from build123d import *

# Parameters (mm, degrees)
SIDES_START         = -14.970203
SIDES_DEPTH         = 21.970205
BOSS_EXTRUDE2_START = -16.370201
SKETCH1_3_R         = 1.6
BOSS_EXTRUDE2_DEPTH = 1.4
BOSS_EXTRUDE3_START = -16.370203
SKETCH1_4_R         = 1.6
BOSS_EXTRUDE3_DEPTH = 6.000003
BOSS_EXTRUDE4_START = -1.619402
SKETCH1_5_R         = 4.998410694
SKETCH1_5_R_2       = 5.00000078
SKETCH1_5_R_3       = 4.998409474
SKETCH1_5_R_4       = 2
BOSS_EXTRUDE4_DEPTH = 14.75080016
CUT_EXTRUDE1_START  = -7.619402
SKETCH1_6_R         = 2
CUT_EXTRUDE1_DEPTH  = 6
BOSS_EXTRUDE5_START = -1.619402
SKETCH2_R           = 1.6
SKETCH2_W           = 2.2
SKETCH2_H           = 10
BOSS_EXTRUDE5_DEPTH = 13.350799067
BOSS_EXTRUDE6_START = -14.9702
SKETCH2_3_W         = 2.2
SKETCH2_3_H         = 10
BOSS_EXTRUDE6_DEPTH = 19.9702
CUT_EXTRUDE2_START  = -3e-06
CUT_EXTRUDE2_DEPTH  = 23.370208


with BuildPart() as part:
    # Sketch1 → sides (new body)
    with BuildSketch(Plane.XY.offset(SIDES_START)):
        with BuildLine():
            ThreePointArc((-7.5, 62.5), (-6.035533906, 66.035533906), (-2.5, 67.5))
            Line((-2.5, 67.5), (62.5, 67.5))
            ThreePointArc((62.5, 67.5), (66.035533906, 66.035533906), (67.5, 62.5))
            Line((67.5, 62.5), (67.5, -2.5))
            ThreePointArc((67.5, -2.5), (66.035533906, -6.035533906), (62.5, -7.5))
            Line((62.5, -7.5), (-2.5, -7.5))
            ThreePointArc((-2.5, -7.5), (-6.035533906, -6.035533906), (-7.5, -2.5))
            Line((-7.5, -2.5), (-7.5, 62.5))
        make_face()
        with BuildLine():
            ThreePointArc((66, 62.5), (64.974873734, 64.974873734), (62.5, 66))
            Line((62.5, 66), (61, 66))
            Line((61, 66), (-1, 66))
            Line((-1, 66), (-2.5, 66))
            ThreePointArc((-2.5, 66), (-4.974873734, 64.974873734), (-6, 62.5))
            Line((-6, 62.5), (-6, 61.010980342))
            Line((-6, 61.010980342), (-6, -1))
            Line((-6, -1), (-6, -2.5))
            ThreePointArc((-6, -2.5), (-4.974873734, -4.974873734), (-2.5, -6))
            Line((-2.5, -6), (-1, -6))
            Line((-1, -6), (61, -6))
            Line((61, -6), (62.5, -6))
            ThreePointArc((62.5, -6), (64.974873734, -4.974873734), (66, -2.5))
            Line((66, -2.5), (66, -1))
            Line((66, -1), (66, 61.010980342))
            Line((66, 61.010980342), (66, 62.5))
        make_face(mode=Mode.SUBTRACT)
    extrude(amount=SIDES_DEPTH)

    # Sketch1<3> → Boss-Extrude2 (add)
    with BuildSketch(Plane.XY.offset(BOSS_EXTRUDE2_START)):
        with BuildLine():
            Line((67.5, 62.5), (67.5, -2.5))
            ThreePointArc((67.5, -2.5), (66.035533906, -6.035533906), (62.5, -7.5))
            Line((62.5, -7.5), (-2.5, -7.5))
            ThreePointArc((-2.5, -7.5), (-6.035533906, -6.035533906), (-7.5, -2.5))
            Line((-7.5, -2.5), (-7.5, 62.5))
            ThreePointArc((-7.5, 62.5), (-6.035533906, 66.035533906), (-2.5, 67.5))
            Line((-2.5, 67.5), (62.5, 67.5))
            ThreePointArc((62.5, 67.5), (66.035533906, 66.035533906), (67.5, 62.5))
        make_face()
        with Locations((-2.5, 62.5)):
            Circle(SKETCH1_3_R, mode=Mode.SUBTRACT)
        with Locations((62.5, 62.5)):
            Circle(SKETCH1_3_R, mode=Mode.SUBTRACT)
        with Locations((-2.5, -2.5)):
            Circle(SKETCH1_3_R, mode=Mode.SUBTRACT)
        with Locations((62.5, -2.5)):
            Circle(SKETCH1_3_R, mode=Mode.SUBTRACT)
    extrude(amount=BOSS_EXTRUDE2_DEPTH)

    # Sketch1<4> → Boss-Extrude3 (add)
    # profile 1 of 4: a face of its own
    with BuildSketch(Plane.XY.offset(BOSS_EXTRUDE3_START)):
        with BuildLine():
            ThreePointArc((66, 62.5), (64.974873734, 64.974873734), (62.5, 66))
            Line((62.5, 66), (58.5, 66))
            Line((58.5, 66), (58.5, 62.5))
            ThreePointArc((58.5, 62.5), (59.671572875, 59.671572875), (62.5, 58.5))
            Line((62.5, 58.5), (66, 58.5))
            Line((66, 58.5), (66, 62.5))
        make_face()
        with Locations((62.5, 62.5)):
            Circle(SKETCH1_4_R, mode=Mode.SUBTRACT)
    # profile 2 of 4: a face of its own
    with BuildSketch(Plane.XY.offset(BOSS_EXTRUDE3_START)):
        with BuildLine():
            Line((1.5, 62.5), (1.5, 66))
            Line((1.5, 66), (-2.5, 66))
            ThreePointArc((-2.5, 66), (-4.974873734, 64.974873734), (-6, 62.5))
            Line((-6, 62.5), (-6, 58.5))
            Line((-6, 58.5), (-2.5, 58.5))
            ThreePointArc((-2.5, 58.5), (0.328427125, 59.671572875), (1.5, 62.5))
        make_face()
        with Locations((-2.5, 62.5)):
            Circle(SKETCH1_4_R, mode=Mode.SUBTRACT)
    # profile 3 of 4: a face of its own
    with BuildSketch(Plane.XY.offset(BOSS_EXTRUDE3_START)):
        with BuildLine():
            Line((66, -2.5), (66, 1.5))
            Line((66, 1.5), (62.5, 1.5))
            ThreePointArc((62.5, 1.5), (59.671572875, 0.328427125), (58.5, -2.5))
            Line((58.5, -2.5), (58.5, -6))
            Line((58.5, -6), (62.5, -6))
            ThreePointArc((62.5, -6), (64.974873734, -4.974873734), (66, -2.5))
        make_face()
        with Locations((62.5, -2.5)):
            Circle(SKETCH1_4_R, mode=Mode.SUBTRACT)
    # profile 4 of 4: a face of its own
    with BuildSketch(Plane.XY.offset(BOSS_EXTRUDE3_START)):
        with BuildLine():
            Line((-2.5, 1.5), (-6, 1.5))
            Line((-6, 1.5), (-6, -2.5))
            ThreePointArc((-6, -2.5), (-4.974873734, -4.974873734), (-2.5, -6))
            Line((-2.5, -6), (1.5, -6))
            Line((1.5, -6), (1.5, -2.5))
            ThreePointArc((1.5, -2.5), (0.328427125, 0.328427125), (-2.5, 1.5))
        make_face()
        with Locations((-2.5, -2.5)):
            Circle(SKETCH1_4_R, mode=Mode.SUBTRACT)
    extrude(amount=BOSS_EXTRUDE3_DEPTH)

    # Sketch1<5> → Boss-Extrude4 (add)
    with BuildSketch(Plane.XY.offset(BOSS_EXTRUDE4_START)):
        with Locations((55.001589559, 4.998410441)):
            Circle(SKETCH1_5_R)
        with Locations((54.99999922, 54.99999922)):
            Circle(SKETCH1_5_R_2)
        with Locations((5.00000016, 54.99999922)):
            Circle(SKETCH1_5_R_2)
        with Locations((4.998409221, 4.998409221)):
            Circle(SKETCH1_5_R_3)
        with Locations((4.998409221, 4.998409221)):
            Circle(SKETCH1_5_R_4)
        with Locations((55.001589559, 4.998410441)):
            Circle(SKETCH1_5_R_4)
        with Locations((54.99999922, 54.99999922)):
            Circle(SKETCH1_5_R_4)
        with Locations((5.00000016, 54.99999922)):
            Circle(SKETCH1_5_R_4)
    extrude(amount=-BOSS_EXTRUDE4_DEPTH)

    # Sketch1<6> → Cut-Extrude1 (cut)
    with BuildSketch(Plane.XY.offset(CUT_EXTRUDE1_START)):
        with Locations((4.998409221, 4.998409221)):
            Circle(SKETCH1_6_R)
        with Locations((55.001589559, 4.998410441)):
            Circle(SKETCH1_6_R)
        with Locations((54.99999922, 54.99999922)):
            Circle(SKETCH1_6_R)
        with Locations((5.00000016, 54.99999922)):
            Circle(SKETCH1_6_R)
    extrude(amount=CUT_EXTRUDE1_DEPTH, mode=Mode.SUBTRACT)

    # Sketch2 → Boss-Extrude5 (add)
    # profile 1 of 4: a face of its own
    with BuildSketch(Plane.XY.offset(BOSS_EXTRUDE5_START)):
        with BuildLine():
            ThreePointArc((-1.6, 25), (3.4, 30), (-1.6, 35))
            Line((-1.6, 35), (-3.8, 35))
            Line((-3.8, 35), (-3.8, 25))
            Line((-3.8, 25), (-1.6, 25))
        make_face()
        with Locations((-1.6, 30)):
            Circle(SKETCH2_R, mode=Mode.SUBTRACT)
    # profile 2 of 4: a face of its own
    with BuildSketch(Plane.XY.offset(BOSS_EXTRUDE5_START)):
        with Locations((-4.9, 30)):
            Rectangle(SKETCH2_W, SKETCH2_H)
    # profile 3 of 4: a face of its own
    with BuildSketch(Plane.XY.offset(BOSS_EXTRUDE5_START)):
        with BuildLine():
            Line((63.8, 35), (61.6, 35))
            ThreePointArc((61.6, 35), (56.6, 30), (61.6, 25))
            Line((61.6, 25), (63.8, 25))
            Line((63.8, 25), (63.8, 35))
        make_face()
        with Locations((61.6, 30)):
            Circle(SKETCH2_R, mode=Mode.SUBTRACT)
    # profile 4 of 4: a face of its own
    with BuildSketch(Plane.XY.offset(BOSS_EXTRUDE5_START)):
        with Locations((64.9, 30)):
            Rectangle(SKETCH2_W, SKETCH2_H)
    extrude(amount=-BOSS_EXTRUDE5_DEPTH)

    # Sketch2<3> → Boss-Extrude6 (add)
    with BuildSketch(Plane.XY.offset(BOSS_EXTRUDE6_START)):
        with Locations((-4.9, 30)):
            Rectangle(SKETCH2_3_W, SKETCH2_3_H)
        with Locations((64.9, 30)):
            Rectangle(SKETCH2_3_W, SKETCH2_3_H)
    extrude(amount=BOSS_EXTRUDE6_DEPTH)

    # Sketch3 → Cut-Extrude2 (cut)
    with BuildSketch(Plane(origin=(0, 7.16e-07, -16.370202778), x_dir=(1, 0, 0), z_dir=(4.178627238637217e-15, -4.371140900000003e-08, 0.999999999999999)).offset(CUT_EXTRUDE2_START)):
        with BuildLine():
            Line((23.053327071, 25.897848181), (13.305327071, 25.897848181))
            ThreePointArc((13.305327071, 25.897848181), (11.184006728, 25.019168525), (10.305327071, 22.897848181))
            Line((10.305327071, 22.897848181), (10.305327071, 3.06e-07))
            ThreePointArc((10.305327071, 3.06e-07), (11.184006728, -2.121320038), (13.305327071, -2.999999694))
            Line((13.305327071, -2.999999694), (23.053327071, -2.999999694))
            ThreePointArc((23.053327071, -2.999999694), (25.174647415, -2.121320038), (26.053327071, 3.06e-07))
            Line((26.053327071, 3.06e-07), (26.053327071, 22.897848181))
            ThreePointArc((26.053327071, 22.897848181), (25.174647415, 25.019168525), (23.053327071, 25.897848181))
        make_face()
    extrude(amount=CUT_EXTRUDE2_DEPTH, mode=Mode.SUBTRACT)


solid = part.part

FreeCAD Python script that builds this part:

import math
import FreeCAD as App
import Part
import Sketcher
from FreeCAD import Vector


def add_polygon(sketch, points):
    """Adds a closed chain of lines whose ends are joined by coincident constraints."""
    first, n = sketch.GeometryCount, len(points)
    for a, b in zip(points, points[1:] + points[:1]):
        sketch.addGeometry(Part.LineSegment(App.Vector(*a, 0), App.Vector(*b, 0)), False)
    for i in range(n):
        sketch.addConstraint(Sketcher.Constraint("Coincident", first + i, 2, first + (i + 1) % n, 1))

doc = App.newDocument("Part")
body = doc.addObject("PartDesign::Body", "Body")

# Sketch on XY plane
sketch1 = body.newObject("Sketcher::SketchObject", "Sketch")
sketch1.AttachmentSupport = (doc.getObject("XY_Plane"), [""])
sketch1.MapMode = "FlatFace"
sketch1.AttachmentOffset = App.Placement(Vector(0, 0, -14.970203), App.Rotation())
sketch1.addGeometry([
    Part.ArcOfCircle(Part.Circle(Vector(-2.5, 62.5, 0), Vector(0, 0, 1), 5), math.radians(90), math.radians(180)),  # 0
    Part.LineSegment(Vector(-7.5, 62.5, 0), Vector(-7.5, -2.5, 0)),  # 1
    Part.ArcOfCircle(Part.Circle(Vector(-2.5, -2.5, 0), Vector(0, 0, 1), 5), math.radians(180), math.radians(270)),  # 2
    Part.LineSegment(Vector(-2.5, -7.5, 0), Vector(62.5, -7.5, 0)),  # 3
    Part.ArcOfCircle(Part.Circle(Vector(62.5, -2.5, 0), Vector(0, 0, 1), 5), math.radians(-90), math.radians(0)),  # 4
    Part.LineSegment(Vector(67.5, -2.5, 0), Vector(67.5, 62.5, 0)),  # 5
    Part.ArcOfCircle(Part.Circle(Vector(62.5, 62.5, 0), Vector(0, 0, 1), 5), math.radians(0), math.radians(90)),  # 6
    Part.LineSegment(Vector(62.5, 67.5, 0), Vector(-2.5, 67.5, 0)),  # 7
    Part.LineSegment(Vector(66, 62.5, 0), Vector(66, -2.5, 0)),  # 8
    Part.ArcOfCircle(Part.Circle(Vector(62.5, -2.5, 0), Vector(0, 0, 1), 3.5), math.radians(-90), math.radians(0)),  # 9
    Part.LineSegment(Vector(62.5, -6, 0), Vector(-2.5, -6, 0)),  # 10
    Part.ArcOfCircle(Part.Circle(Vector(-2.5, -2.5, 0), Vector(0, 0, 1), 3.5), math.radians(-180), math.radians(-90)),  # 11
    Part.LineSegment(Vector(-6, -2.5, 0), Vector(-6, 62.5, 0)),  # 12
    Part.ArcOfCircle(Part.Circle(Vector(-2.5, 62.5, 0), Vector(0, 0, 1), 3.5), math.radians(90), math.radians(180)),  # 13
    Part.LineSegment(Vector(-2.5, 66, 0), Vector(62.5, 66, 0)),  # 14
    Part.ArcOfCircle(Part.Circle(Vector(62.5, 62.5, 0), Vector(0, 0, 1), 3.5), math.radians(0), math.radians(90)),  # 15
], False)
sketch1.addConstraint([
    Sketcher.Constraint("Tangent", 0, 2, 1, 1),
    Sketcher.Constraint("Tangent", 1, 2, 2, 1),
    Sketcher.Constraint("Tangent", 2, 2, 3, 1),
    Sketcher.Constraint("Tangent", 3, 2, 4, 1),
    Sketcher.Constraint("Tangent", 4, 2, 5, 1),
    Sketcher.Constraint("Tangent", 5, 2, 6, 1),
    Sketcher.Constraint("Tangent", 6, 2, 7, 1),
    Sketcher.Constraint("Tangent", 7, 2, 0, 1),
    Sketcher.Constraint("Tangent", 8, 2, 9, 2),
    Sketcher.Constraint("Tangent", 9, 1, 10, 1),
    Sketcher.Constraint("Tangent", 10, 2, 11, 2),
    Sketcher.Constraint("Tangent", 11, 1, 12, 1),
    Sketcher.Constraint("Tangent", 12, 2, 13, 2),
    Sketcher.Constraint("Tangent", 13, 1, 14, 1),
    Sketcher.Constraint("Tangent", 14, 2, 15, 2),
    Sketcher.Constraint("Tangent", 15, 1, 8, 1),
    Sketcher.Constraint("Vertical", 1),
    Sketcher.Constraint("Horizontal", 3),
    Sketcher.Constraint("Vertical", 5),
    Sketcher.Constraint("Horizontal", 7),
    Sketcher.Constraint("Vertical", 8),
    Sketcher.Constraint("Horizontal", 10),
    Sketcher.Constraint("Vertical", 12),
    Sketcher.Constraint("Horizontal", 14),
    Sketcher.Constraint("Coincident", 9, 3, 4, 3),
    Sketcher.Constraint("Coincident", 11, 3, 2, 3),
    Sketcher.Constraint("Coincident", 13, 3, 0, 3),
    Sketcher.Constraint("Equal", 0, 2),
    Sketcher.Constraint("Equal", 2, 4),
    Sketcher.Constraint("Equal", 4, 6),
    Sketcher.Constraint("Equal", 13, 15),
    Sketcher.Constraint("Equal", 14, 1),
    Sketcher.Constraint("Radius", 0, 5.0),
    Sketcher.Constraint("Radius", 9, 3.5),
    Sketcher.Constraint("DistanceX", 3, 1, 3, 2, 65.0),
    Sketcher.Constraint("DistanceX", -1, 1, 8, 2, 66.0),
    Sketcher.Constraint("DistanceY", 9, 1, -1, 1, 6.0),
])
pad1 = body.newObject("PartDesign::Pad", "Pad")
pad1.Profile = sketch1
pad1.Length = 21.970205

# Sketch on XY plane
sketch2 = body.newObject("Sketcher::SketchObject", "Sketch001")
sketch2.AttachmentSupport = (doc.getObject("XY_Plane"), [""])
sketch2.MapMode = "FlatFace"
sketch2.AttachmentOffset = App.Placement(Vector(0, 0, -16.370201), App.Rotation())
sketch2.addGeometry([
    Part.LineSegment(Vector(67.5, -2.5, 0), Vector(67.5, 62.5, 0)),  # 0
    Part.ArcOfCircle(Part.Circle(Vector(62.5, 62.5, 0), Vector(0, 0, 1), 5), math.radians(0), math.radians(90)),  # 1
    Part.LineSegment(Vector(62.5, 67.5, 0), Vector(-2.5, 67.5, 0)),  # 2
    Part.ArcOfCircle(Part.Circle(Vector(-2.5, 62.5, 0), Vector(0, 0, 1), 5), math.radians(90), math.radians(180)),  # 3
    Part.LineSegment(Vector(-7.5, 62.5, 0), Vector(-7.5, -2.5, 0)),  # 4
    Part.ArcOfCircle(Part.Circle(Vector(-2.5, -2.5, 0), Vector(0, 0, 1), 5), math.radians(180), math.radians(270)),  # 5
    Part.LineSegment(Vector(-2.5, -7.5, 0), Vector(62.5, -7.5, 0)),  # 6
    Part.ArcOfCircle(Part.Circle(Vector(62.5, -2.5, 0), Vector(0, 0, 1), 5), math.radians(-90), math.radians(0)),  # 7
    Part.Circle(Vector(62.5, -2.5, 0), Vector(0, 0, 1), 1.6),  # 8
    Part.Circle(Vector(-2.5, -2.5, 0), Vector(0, 0, 1), 1.6),  # 9
    Part.Circle(Vector(62.5, 62.5, 0), Vector(0, 0, 1), 1.6),  # 10
    Part.Circle(Vector(-2.5, 62.5, 0), Vector(0, 0, 1), 1.6),  # 11
], False)
sketch2.addConstraint([
    Sketcher.Constraint("Tangent", 0, 2, 1, 1),
    Sketcher.Constraint("Tangent", 1, 2, 2, 1),
    Sketcher.Constraint("Tangent", 2, 2, 3, 1),
    Sketcher.Constraint("Tangent", 3, 2, 4, 1),
    Sketcher.Constraint("Tangent", 4, 2, 5, 1),
    Sketcher.Constraint("Tangent", 5, 2, 6, 1),
    Sketcher.Constraint("Tangent", 6, 2, 7, 1),
    Sketcher.Constraint("Tangent", 7, 2, 0, 1),
    Sketcher.Constraint("Vertical", 0),
    Sketcher.Constraint("Horizontal", 2),
    Sketcher.Constraint("Vertical", 4),
    Sketcher.Constraint("Horizontal", 6),
    Sketcher.Constraint("Coincident", 8, 3, 7, 3),
    Sketcher.Constraint("Coincident", 9, 3, 5, 3),
    Sketcher.Constraint("Coincident", 10, 3, 1, 3),
    Sketcher.Constraint("Coincident", 11, 3, 3, 3),
    Sketcher.Constraint("Equal", 1, 3),
    Sketcher.Constraint("Equal", 3, 5),
    Sketcher.Constraint("Equal", 5, 7),
    Sketcher.Constraint("Equal", 8, 9),
    Sketcher.Constraint("Equal", 9, 10),
    Sketcher.Constraint("Equal", 10, 11),
    Sketcher.Constraint("Equal", 6, 0),
    Sketcher.Constraint("Radius", 1, 5.0),
    Sketcher.Constraint("Diameter", 8, 3.2),
    Sketcher.Constraint("DistanceX", 2, 2, 2, 1, 65.0),
    Sketcher.Constraint("DistanceX", -1, 1, 1, 3, 62.5),
    Sketcher.Constraint("DistanceY", -1, 1, 1, 3, 62.5),
])
pad2 = body.newObject("PartDesign::Pad", "Pad001")
pad2.Profile = sketch2
pad2.Length = 1.4

# Sketch on XY plane
sketch3 = body.newObject("Sketcher::SketchObject", "Sketch002")
sketch3.AttachmentSupport = (doc.getObject("XY_Plane"), [""])
sketch3.MapMode = "FlatFace"
sketch3.AttachmentOffset = App.Placement(Vector(0, 0, -16.370203), App.Rotation())
sketch3.addGeometry([
    Part.ArcOfCircle(Part.Circle(Vector(62.5, 62.5, 0), Vector(0, 0, 1), 3.5), math.radians(0), math.radians(90)),  # 0
    Part.LineSegment(Vector(62.5, 66, 0), Vector(58.5, 66, 0)),  # 1
    Part.LineSegment(Vector(58.5, 66, 0), Vector(58.5, 62.5, 0)),  # 2
    Part.ArcOfCircle(Part.Circle(Vector(62.5, 62.5, 0), Vector(0, 0, 1), 4), math.radians(180), math.radians(270)),  # 3
    Part.LineSegment(Vector(62.5, 58.5, 0), Vector(66, 58.5, 0)),  # 4
    Part.LineSegment(Vector(66, 58.5, 0), Vector(66, 62.5, 0)),  # 5
    Part.Circle(Vector(62.5, 62.5, 0), Vector(0, 0, 1), 1.6),  # 6
    Part.LineSegment(Vector(1.5, 62.5, 0), Vector(1.5, 66, 0)),  # 7
    Part.LineSegment(Vector(1.5, 66, 0), Vector(-2.5, 66, 0)),  # 8
    Part.ArcOfCircle(Part.Circle(Vector(-2.5, 62.5, 0), Vector(0, 0, 1), 3.5), math.radians(90), math.radians(180)),  # 9
    Part.LineSegment(Vector(-6, 62.5, 0), Vector(-6, 58.5, 0)),  # 10
    Part.LineSegment(Vector(-6, 58.5, 0), Vector(-2.5, 58.5, 0)),  # 11
    Part.ArcOfCircle(Part.Circle(Vector(-2.5, 62.5, 0), Vector(0, 0, 1), 4), math.radians(-90), math.radians(0)),  # 12
    Part.Circle(Vector(-2.5, 62.5, 0), Vector(0, 0, 1), 1.6),  # 13
    Part.LineSegment(Vector(66, -2.5, 0), Vector(66, 1.5, 0)),  # 14
    Part.LineSegment(Vector(66, 1.5, 0), Vector(62.5, 1.5, 0)),  # 15
    Part.ArcOfCircle(Part.Circle(Vector(62.5, -2.5, 0), Vector(0, 0, 1), 4), math.radians(90), math.radians(180)),  # 16
    Part.LineSegment(Vector(58.5, -2.5, 0), Vector(58.5, -6, 0)),  # 17
    Part.LineSegment(Vector(58.5, -6, 0), Vector(62.5, -6, 0)),  # 18
    Part.ArcOfCircle(Part.Circle(Vector(62.5, -2.5, 0), Vector(0, 0, 1), 3.5), math.radians(-90), math.radians(0)),  # 19
    Part.Circle(Vector(62.5, -2.5, 0), Vector(0, 0, 1), 1.6),  # 20
    Part.LineSegment(Vector(-2.5, 1.5, 0), Vector(-6, 1.5, 0)),  # 21
    Part.LineSegment(Vector(-6, 1.5, 0), Vector(-6, -2.5, 0)),  # 22
    Part.ArcOfCircle(Part.Circle(Vector(-2.5, -2.5, 0), Vector(0, 0, 1), 3.5), math.radians(-180), math.radians(-90)),  # 23
    Part.LineSegment(Vector(-2.5, -6, 0), Vector(1.5, -6, 0)),  # 24
    Part.LineSegment(Vector(1.5, -6, 0), Vector(1.5, -2.5, 0)),  # 25
    Part.ArcOfCircle(Part.Circle(Vector(-2.5, -2.5, 0), Vector(0, 0, 1), 4), math.radians(0), math.radians(90)),  # 26
    Part.Circle(Vector(-2.5, -2.5, 0), Vector(0, 0, 1), 1.6),  # 27
], False)
sketch3.addConstraint([
    Sketcher.Constraint("Tangent", 0, 2, 1, 1),
    Sketcher.Constraint("Coincident", 1, 2, 2, 1),
    Sketcher.Constraint("Tangent", 2, 2, 3, 1),
    Sketcher.Constraint("Tangent", 3, 2, 4, 1),
    Sketcher.Constraint("Coincident", 4, 2, 5, 1),
    Sketcher.Constraint("Tangent", 5, 2, 0, 1),
    Sketcher.Constraint("Coincident", 7, 2, 8, 1),
    Sketcher.Constraint("Tangent", 8, 2, 9, 1),
    Sketcher.Constraint("Tangent", 9, 2, 10, 1),
    Sketcher.Constraint("Coincident", 10, 2, 11, 1),
    Sketcher.Constraint("Tangent", 11, 2, 12, 1),
    Sketcher.Constraint("Tangent", 12, 2, 7, 1),
    Sketcher.Constraint("Coincident", 14, 2, 15, 1),
    Sketcher.Constraint("Tangent", 15, 2, 16, 1),
    Sketcher.Constraint("Tangent", 16, 2, 17, 1),
    Sketcher.Constraint("Coincident", 17, 2, 18, 1),
    Sketcher.Constraint("Tangent", 18, 2, 19, 1),
    Sketcher.Constraint("Tangent", 19, 2, 14, 1),
    Sketcher.Constraint("Coincident", 21, 2, 22, 1),
    Sketcher.Constraint("Tangent", 22, 2, 23, 1),
    Sketcher.Constraint("Tangent", 23, 2, 24, 1),
    Sketcher.Constraint("Coincident", 24, 2, 25, 1),
    Sketcher.Constraint("Tangent", 25, 2, 26, 1),
    Sketcher.Constraint("Tangent", 26, 2, 21, 1),
    Sketcher.Constraint("Horizontal", 1),
    Sketcher.Constraint("Vertical", 2),
    Sketcher.Constraint("Horizontal", 4),
    Sketcher.Constraint("Vertical", 5),
    Sketcher.Constraint("Vertical", 7),
    Sketcher.Constraint("Horizontal", 8),
    Sketcher.Constraint("Vertical", 10),
    Sketcher.Constraint("Horizontal", 11),
    Sketcher.Constraint("Vertical", 14),
    Sketcher.Constraint("Horizontal", 15),
    Sketcher.Constraint("Vertical", 17),
    Sketcher.Constraint("Horizontal", 18),
    Sketcher.Constraint("Horizontal", 21),
    Sketcher.Constraint("Vertical", 22),
    Sketcher.Constraint("Horizontal", 24),
    Sketcher.Constraint("Vertical", 25),
    Sketcher.Constraint("Coincident", 3, 3, 0, 3),
    Sketcher.Constraint("Coincident", 6, 3, 0, 3),
    Sketcher.Constraint("Coincident", 12, 3, 9, 3),
    Sketcher.Constraint("Coincident", 13, 3, 9, 3),
    Sketcher.Constraint("Coincident", 19, 3, 16, 3),
    Sketcher.Constraint("Coincident", 20, 3, 16, 3),
    Sketcher.Constraint("Coincident", 26, 3, 23, 3),
    Sketcher.Constraint("Coincident", 27, 3, 23, 3),
    Sketcher.Constraint("Equal", 0, 9),
    Sketcher.Constraint("Equal", 3, 12),
    Sketcher.Constraint("Equal", 6, 13),
    Sketcher.Constraint("Equal", 12, 16),
    Sketcher.Constraint("Equal", 9, 19),
    Sketcher.Constraint("Equal", 13, 20),
    Sketcher.Constraint("Equal", 19, 23),
    Sketcher.Constraint("Equal", 16, 26),
    Sketcher.Constraint("Equal", 20, 27),
    Sketcher.Constraint("Horizontal", 6, 3, 9, 3),
    Sketcher.Constraint("Horizontal", 20, 3, 23, 3),
    Sketcher.Constraint("Vertical", 6, 3, 16, 3),
    Sketcher.Constraint("Vertical", 13, 3, 23, 3),
    Sketcher.Constraint("Radius", 3, 4.0),
    Sketcher.Constraint("Diameter", 6, 3.2),
    Sketcher.Constraint("Radius", 0, 3.5),
    Sketcher.Constraint("DistanceY", -1, 1, 0, 2, 66.0),
    Sketcher.Constraint("DistanceX", -1, 1, 4, 2, 66.0),
    Sketcher.Constraint("DistanceX", 9, 2, -1, 1, 6.0),
    Sketcher.Constraint("DistanceY", 17, 2, -1, 1, 6.0),
])
pad3 = body.newObject("PartDesign::Pad", "Pad002")
pad3.Profile = sketch3
pad3.Length = 6.000003

# Sketch on XY plane
sketch4 = body.newObject("Sketcher::SketchObject", "Sketch003")
sketch4.AttachmentSupport = (doc.getObject("XY_Plane"), [""])
sketch4.MapMode = "FlatFace"
sketch4.AttachmentOffset = App.Placement(Vector(0, 0, -1.619402), App.Rotation())
sketch4.addGeometry([
    Part.Circle(Vector(55.00159, 4.99841, 0), Vector(0, 0, 1), 4.998411),
    Part.Circle(Vector(54.999999, 54.999999, 0), Vector(0, 0, 1), 5.000001),
    Part.Circle(Vector(5, 54.999999, 0), Vector(0, 0, 1), 5.000001),
    Part.Circle(Vector(4.998409, 4.998409, 0), Vector(0, 0, 1), 4.998409),
], False)
sketch4.addConstraint([
    Sketcher.Constraint("Equal", 1, 2),
    Sketcher.Constraint("Equal", 0, 3),
    Sketcher.Constraint("Horizontal", 1, 3, 2, 3),
    Sketcher.Constraint("Horizontal", 0, 3, 3, 3),
    Sketcher.Constraint("Diameter", 1, 10.000002),
    Sketcher.Constraint("DistanceX", -1, 1, 1, 3, 54.999999),
    Sketcher.Constraint("DistanceY", -1, 1, 1, 3, 54.999999),
    Sketcher.Constraint("DistanceX", -1, 1, 2, 3, 5.0),
    Sketcher.Constraint("Diameter", 0, 9.996821),
    Sketcher.Constraint("DistanceX", -1, 1, 0, 3, 55.00159),
    Sketcher.Constraint("DistanceY", -1, 1, 0, 3, 4.99841),
    Sketcher.Constraint("DistanceX", -1, 1, 3, 3, 4.998409),
])
pad4 = body.newObject("PartDesign::Pad", "Pad003")
pad4.Profile = sketch4
pad4.Length = 14.7508
pad4.Reversed = True

# Sketch on XY plane
sketch5 = body.newObject("Sketcher::SketchObject", "Sketch004")
sketch5.AttachmentSupport = (doc.getObject("XY_Plane"), [""])
sketch5.MapMode = "FlatFace"
sketch5.AttachmentOffset = App.Placement(Vector(0, 0, -7.619402), App.Rotation())
sketch5.addGeometry([
    Part.Circle(Vector(4.998409, 4.998409, 0), Vector(0, 0, 1), 2),
    Part.Circle(Vector(55.00159, 4.99841, 0), Vector(0, 0, 1), 2),
    Part.Circle(Vector(54.999999, 54.999999, 0), Vector(0, 0, 1), 2),
    Part.Circle(Vector(5, 54.999999, 0), Vector(0, 0, 1), 2),
], False)
sketch5.addConstraint([
    Sketcher.Constraint("Equal", 0, 1),
    Sketcher.Constraint("Equal", 1, 2),
    Sketcher.Constraint("Equal", 2, 3),
    Sketcher.Constraint("Horizontal", 0, 3, 1, 3),
    Sketcher.Constraint("Horizontal", 2, 3, 3, 3),
    Sketcher.Constraint("Diameter", 0, 4.0),
    Sketcher.Constraint("DistanceX", -1, 1, 2, 3, 54.999999),
    Sketcher.Constraint("DistanceY", -1, 1, 2, 3, 54.999999),
    Sketcher.Constraint("DistanceX", -1, 1, 3, 3, 5.0),
    Sketcher.Constraint("DistanceX", -1, 1, 0, 3, 4.998409),
    Sketcher.Constraint("DistanceY", -1, 1, 0, 3, 4.998409),
    Sketcher.Constraint("DistanceX", -1, 1, 1, 3, 55.00159),
])
pocket1 = body.newObject("PartDesign::Pocket", "Pocket")
pocket1.Profile = sketch5
pocket1.Length = 6
pocket1.Reversed = True

# Sketch on XY plane
sketch6 = body.newObject("Sketcher::SketchObject", "Sketch005")
sketch6.AttachmentSupport = (doc.getObject("XY_Plane"), [""])
sketch6.MapMode = "FlatFace"
sketch6.AttachmentOffset = App.Placement(Vector(0, 0, -1.619402), App.Rotation())
sketch6.addGeometry([
    Part.ArcOfCircle(Part.Circle(Vector(-1.6, 30, 0), Vector(0, 0, 1), 5), math.radians(-90), math.radians(90)),  # 0
    Part.LineSegment(Vector(-1.6, 35, 0), Vector(-6, 35, 0)),  # 1
    Part.LineSegment(Vector(-6, 35, 0), Vector(-6, 25, 0)),  # 2
    Part.LineSegment(Vector(-6, 25, 0), Vector(-1.6, 25, 0)),  # 3
    Part.Circle(Vector(-1.6, 30, 0), Vector(0, 0, 1), 1.6),  # 4
    Part.ArcOfCircle(Part.Circle(Vector(61.6, 30, 0), Vector(0, 0, 1), 5), math.radians(90), math.radians(270)),  # 5
    Part.LineSegment(Vector(61.6, 25, 0), Vector(66, 25, 0)),  # 6
    Part.LineSegment(Vector(66, 25, 0), Vector(66, 35, 0)),  # 7
    Part.LineSegment(Vector(66, 35, 0), Vector(61.6, 35, 0)),  # 8
    Part.Circle(Vector(61.6, 30, 0), Vector(0, 0, 1), 1.6),  # 9
], False)
sketch6.addConstraint([
    Sketcher.Constraint("Tangent", 0, 2, 1, 1),
    Sketcher.Constraint("Coincident", 1, 2, 2, 1),
    Sketcher.Constraint("Coincident", 2, 2, 3, 1),
    Sketcher.Constraint("Tangent", 3, 2, 0, 1),
    Sketcher.Constraint("Tangent", 5, 2, 6, 1),
    Sketcher.Constraint("Coincident", 6, 2, 7, 1),
    Sketcher.Constraint("Coincident", 7, 2, 8, 1),
    Sketcher.Constraint("Tangent", 8, 2, 5, 1),
    Sketcher.Constraint("Horizontal", 1),
    Sketcher.Constraint("Vertical", 2),
    Sketcher.Constraint("Horizontal", 3),
    Sketcher.Constraint("Horizontal", 6),
    Sketcher.Constraint("Vertical", 7),
    Sketcher.Constraint("Horizontal", 8),
    Sketcher.Constraint("Coincident", 4, 3, 0, 3),
    Sketcher.Constraint("Coincident", 9, 3, 5, 3),
    Sketcher.Constraint("Equal", 0, 5),
    Sketcher.Constraint("Equal", 4, 9),
    Sketcher.Constraint("Horizontal", 4, 3, 5, 3),
    Sketcher.Constraint("Equal", 3, 6),
    Sketcher.Constraint("Radius", 0, 5.0),
    Sketcher.Constraint("Diameter", 4, 3.2),
    Sketcher.Constraint("DistanceX", 1, 2, 1, 1, 4.4),
    Sketcher.Constraint("DistanceY", -1, 1, 0, 3, 30.0),
    Sketcher.Constraint("DistanceX", 1, 2, -1, 1, 6.0),
    Sketcher.Constraint("DistanceX", -1, 1, 6, 2, 66.0),
])
pad5 = body.newObject("PartDesign::Pad", "Pad004")
pad5.Profile = sketch6
pad5.Length = 13.350799
pad5.Reversed = True

# Sketch on XY plane
sketch7 = body.newObject("Sketcher::SketchObject", "Sketch006")
sketch7.AttachmentSupport = (doc.getObject("XY_Plane"), [""])
sketch7.MapMode = "FlatFace"
sketch7.AttachmentOffset = App.Placement(Vector(0, 0, -14.9702), App.Rotation())
add_polygon(sketch7, [(-6, 35), (-6, 25), (-3.8, 25), (-3.8, 35)])  # lines 0-3
add_polygon(sketch7, [(63.8, 35), (63.8, 25), (66, 25), (66, 35)])  # lines 4-7
sketch7.addConstraint([
    Sketcher.Constraint("Vertical", 0),
    Sketcher.Constraint("Horizontal", 1),
    Sketcher.Constraint("Vertical", 2),
    Sketcher.Constraint("Horizontal", 3),
    Sketcher.Constraint("Vertical", 4),
    Sketcher.Constraint("Horizontal", 5),
    Sketcher.Constraint("Vertical", 6),
    Sketcher.Constraint("Horizontal", 7),
    Sketcher.Constraint("Horizontal", 1, 2, 4, 2),
    Sketcher.Constraint("Horizontal", 3, 2, 6, 2),
    Sketcher.Constraint("Equal", 3, 5),
    Sketcher.Constraint("DistanceY", 0, 2, 0, 1, 10.0),
    Sketcher.Constraint("DistanceX", 1, 1, 1, 2, 2.2),
    Sketcher.Constraint("DistanceX", 0, 2, -1, 1, 6.0),
    Sketcher.Constraint("DistanceY", -1, 1, 0, 2, 25.0),
    Sketcher.Constraint("DistanceX", -1, 1, 5, 2, 66.0),
])
pad6 = body.newObject("PartDesign::Pad", "Pad005")
pad6.Profile = sketch7
pad6.Length = 19.9702

# Sketch on XY plane
sketch8 = body.newObject("Sketcher::SketchObject", "Sketch007")
sketch8.AttachmentSupport = (doc.getObject("XY_Plane"), [""])
sketch8.MapMode = "FlatFace"
sketch8.AttachmentOffset = App.Placement(Vector(0, 0, -16.370206), App.Rotation())
sketch8.addGeometry([
    Part.LineSegment(Vector(23.053327, 25.897849, 0), Vector(13.305327, 25.897849, 0)),  # 0
    Part.ArcOfCircle(Part.Circle(Vector(13.305327, 22.897849, 0), Vector(0, 0, 1), 3), math.radians(90), math.radians(180)),  # 1
    Part.LineSegment(Vector(10.305327, 22.897849, 0), Vector(10.305327, 0.000001, 0)),  # 2
    Part.ArcOfCircle(Part.Circle(Vector(13.305327, 0.000001, 0), Vector(0, 0, 1), 3), math.radians(180), math.radians(270)),  # 3
    Part.LineSegment(Vector(13.305327, -2.999999, 0), Vector(23.053327, -2.999999, 0)),  # 4
    Part.ArcOfCircle(Part.Circle(Vector(23.053327, 0.000001, 0), Vector(0, 0, 1), 3), math.radians(-90), math.radians(0)),  # 5
    Part.LineSegment(Vector(26.053327, 0.000001, 0), Vector(26.053327, 22.897849, 0)),  # 6
    Part.ArcOfCircle(Part.Circle(Vector(23.053327, 22.897849, 0), Vector(0, 0, 1), 3), math.radians(0), math.radians(90)),  # 7
], False)
sketch8.addConstraint([
    Sketcher.Constraint("Tangent", 0, 2, 1, 1),
    Sketcher.Constraint("Tangent", 1, 2, 2, 1),
    Sketcher.Constraint("Tangent", 2, 2, 3, 1),
    Sketcher.Constraint("Tangent", 3, 2, 4, 1),
    Sketcher.Constraint("Tangent", 4, 2, 5, 1),
    Sketcher.Constraint("Tangent", 5, 2, 6, 1),
    Sketcher.Constraint("Tangent", 6, 2, 7, 1),
    Sketcher.Constraint("Tangent", 7, 2, 0, 1),
    Sketcher.Constraint("Horizontal", 0),
    Sketcher.Constraint("Vertical", 2),
    Sketcher.Constraint("Horizontal", 4),
    Sketcher.Constraint("Vertical", 6),
    Sketcher.Constraint("Equal", 1, 3),
    Sketcher.Constraint("Equal", 3, 5),
    Sketcher.Constraint("Equal", 5, 7),
    Sketcher.Constraint("PointOnObject", 3, 3, -1),
    Sketcher.Constraint("Radius", 1, 3.0),
    Sketcher.Constraint("DistanceX", 0, 2, 0, 1, 9.748),
    Sketcher.Constraint("DistanceY", 2, 2, 2, 1, 22.897848),
    Sketcher.Constraint("DistanceX", -1, 1, 1, 3, 13.305327),
])
pocket2 = body.newObject("PartDesign::Pocket", "Pocket001")
pocket2.Profile = sketch8
pocket2.Length = 23.370208
pocket2.Reversed = True

doc.recompute()
